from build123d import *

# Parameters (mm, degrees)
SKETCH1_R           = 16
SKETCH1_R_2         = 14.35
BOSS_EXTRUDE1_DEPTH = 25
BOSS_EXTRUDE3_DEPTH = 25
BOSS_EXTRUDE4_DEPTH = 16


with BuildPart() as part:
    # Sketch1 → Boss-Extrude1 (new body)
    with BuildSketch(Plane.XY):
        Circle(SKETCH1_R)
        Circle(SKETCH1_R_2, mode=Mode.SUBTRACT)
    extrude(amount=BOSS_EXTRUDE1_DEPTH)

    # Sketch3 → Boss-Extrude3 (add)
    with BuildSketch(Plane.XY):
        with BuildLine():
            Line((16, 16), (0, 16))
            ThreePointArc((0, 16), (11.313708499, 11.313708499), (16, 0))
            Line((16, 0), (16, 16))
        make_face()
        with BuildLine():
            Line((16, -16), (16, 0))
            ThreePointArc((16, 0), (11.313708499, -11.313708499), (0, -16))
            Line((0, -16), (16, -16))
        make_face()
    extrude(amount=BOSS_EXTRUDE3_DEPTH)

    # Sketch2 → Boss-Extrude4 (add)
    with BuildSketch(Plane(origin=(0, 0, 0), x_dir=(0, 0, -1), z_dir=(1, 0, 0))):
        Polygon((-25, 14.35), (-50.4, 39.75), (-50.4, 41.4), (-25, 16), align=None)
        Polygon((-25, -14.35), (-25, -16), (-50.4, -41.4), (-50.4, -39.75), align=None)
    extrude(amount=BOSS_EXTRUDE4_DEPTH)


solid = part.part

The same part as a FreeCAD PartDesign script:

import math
import FreeCAD as App
import Part
import Sketcher
from FreeCAD import Vector

doc = App.newDocument("Part")
params = doc.addObject("Spreadsheet::Sheet", "Params")
for row, (alias, value) in enumerate([
    ("sketch1_diameter", "32 mm"),
    ("sketch1_diameter2", "28.7 mm"),
    ("pad1_length", "25 mm"),
    ("sketch2_radius", "16 mm"),
    ("pad2_length", "25 mm"),
    ("sketch3_width", "1.65 mm"),
    ("pad3_length", "16 mm"),
], start=1):
    params.set(f"A{row}", alias)
    params.set(f"B{row}", "=" + value)
    params.setAlias(f"B{row}", alias)

body = doc.addObject("PartDesign::Body", "Body")

sketch1 = body.newObject("Sketcher::SketchObject", "Sketch")
sketch1.AttachmentSupport = (doc.getObject("XY_Plane"), [""])
sketch1.MapMode = "FlatFace"
sketch1.addGeometry([
    Part.Circle(Vector(0, 0, 0), Vector(0, 0, 1), 16),
    Part.Circle(Vector(0, 0, 0), Vector(0, 0, 1), 14),
], False)
sketch1.addConstraint([
    Sketcher.Constraint("Coincident", 0, 3, -1, 1),
    Sketcher.Constraint("Coincident", 1, 3, -1, 1),
    Sketcher.Constraint("Diameter", 0, 32.0),
    Sketcher.Constraint("Diameter", 1, 28.7),
])
sketch1.setExpression("Constraints[2]", "Params.sketch1_diameter")
sketch1.setExpression("Constraints[3]", "Params.sketch1_diameter2")
pad1 = body.newObject("PartDesign::Pad", "Pad")
pad1.Profile = sketch1
pad1.setExpression("Length", "Params.pad1_length")

sketch2 = body.newObject("Sketcher::SketchObject", "Sketch001")
sketch2.AttachmentSupport = (doc.getObject("XY_Plane"), [""])
sketch2.MapMode = "FlatFace"
sketch2.addGeometry([
    Part.LineSegment(Vector(16, 16, 0), Vector(0, 16, 0)),
    Part.ArcOfCircle(Part.Circle(Vector(0, 0, 0), Vector(0, 0, 1), 16), math.radians(0), math.radians(90)),
    Part.LineSegment(Vector(16, 0, 0), Vector(16, 16, 0)),
    Part.LineSegment(Vector(16, -16, 0), Vector(16, 0, 0)),
    Part.ArcOfCircle(Part.Circle(Vector(0, 0, 0), Vector(0, 0, 1), 16), math.radians(-90), math.radians(0)),
    Part.LineSegment(Vector(0, -16, 0), Vector(16, -16, 0)),
], False)
sketch2.addConstraint([
    Sketcher.Constraint("Tangent", 0, 2, 1, 2),
    Sketcher.Constraint("Tangent", 1, 1, 2, 1),
    Sketcher.Constraint("Coincident", 2, 2, 0, 1),
    Sketcher.Constraint("Tangent", 3, 2, 4, 2),
    Sketcher.Constraint("Tangent", 4, 1, 5, 1),
    Sketcher.Constraint("Coincident", 5, 2, 3, 1),
    Sketcher.Constraint("Horizontal", 0),
    Sketcher.Constraint("Vertical", 2),
    Sketcher.Constraint("Vertical", 3),
    Sketcher.Constraint("Horizontal", 5),
    Sketcher.Constraint("Coincident", 1, 3, -1, 1),
    Sketcher.Constraint("Coincident", 4, 3, -1, 1),
    Sketcher.Constraint("Equal", 1, 4),
    Sketcher.Constraint("Radius", 1, 16.0),
])
sketch2.setExpression("Constraints[13]", "Params.sketch2_radius")
pad2 = body.newObject("PartDesign::Pad", "Pad001")
pad2.Profile = sketch2
pad2.setExpression("Length", "Params.pad2_length")

sketch3 = body.newObject("Sketcher::SketchObject", "Sketch002")
sketch3.AttachmentSupport = (doc.getObject("YZ_Plane"), [""])
sketch3.MapMode = "FlatFace"
sketch3.addGeometry([
    Part.LineSegment(Vector(39.8, 50.4, 0), Vector(14.3, 25, 0)),
    Part.LineSegment(Vector(14.3, 25, 0), Vector(16, 25, 0)),
    Part.LineSegment(Vector(16, 25, 0), Vector(41.4, 50.4, 0)),
    Part.LineSegment(Vector(41.4, 50.4, 0), Vector(39.8, 50.4, 0)),
    Part.LineSegment(Vector(-16, 25, 0), Vector(-14.3, 25, 0)),
    Part.LineSegment(Vector(-14.3, 25, 0), Vector(-39.8, 50.4, 0)),
    Part.LineSegment(Vector(-39.8, 50.4, 0), Vector(-41.4, 50.4, 0)),
    Part.LineSegment(Vector(-41.4, 50.4, 0), Vector(-16, 25, 0)),
], False)
sketch3.addConstraint([
    Sketcher.Constraint("Coincident", 0, 2, 1, 1),
    Sketcher.Constraint("Coincident", 1, 2, 2, 1),
    Sketcher.Constraint("Coincident", 2, 2, 3, 1),
    Sketcher.Constraint("Coincident", 3, 2, 0, 1),
    Sketcher.Constraint("Coincident", 4, 2, 5, 1),
    Sketcher.Constraint("Coincident", 5, 2, 6, 1),
    Sketcher.Constraint("Coincident", 6, 2, 7, 1),
    Sketcher.Constraint("Coincident", 7, 2, 4, 1),
    Sketcher.Constraint("Horizontal", 1),
    Sketcher.Constraint("Horizontal", 3),
    Sketcher.Constraint("Horizontal", 4),
    Sketcher.Constraint("Horizontal", 6),
    Sketcher.Constraint("Symmetric", 0, 2, 4, 2, -2),
    Sketcher.Constraint("Symmetric", 3, 2, 5, 2, -2),
    Sketcher.Constraint("Parallel", 0, 2),
    Sketcher.Constraint("Perpendicular", 2, 5),
    Sketcher.Constraint("Parallel", 5, 7),
    Sketcher.Constraint("Equal", 3, 4),
    Sketcher.Constraint("DistanceY", -1, 1, 0, 2, 25.0),
    Sketcher.Constraint("DistanceX", -1, 1, 1, 2, 16.0),
    Sketcher.Constraint("DistanceX", 1, 1, 1, 2, 1.65),
    Sketcher.Constraint("DistanceX", -1, 1, 2, 2, 41.4),
])
sketch3.setExpression("Constraints[20]", "Params.sketch3_width")
pad3 = body.newObject("PartDesign::Pad", "Pad002")
pad3.Profile = sketch3
pad3.setExpression("Length", "Params.pad3_length")

doc.recompute()
